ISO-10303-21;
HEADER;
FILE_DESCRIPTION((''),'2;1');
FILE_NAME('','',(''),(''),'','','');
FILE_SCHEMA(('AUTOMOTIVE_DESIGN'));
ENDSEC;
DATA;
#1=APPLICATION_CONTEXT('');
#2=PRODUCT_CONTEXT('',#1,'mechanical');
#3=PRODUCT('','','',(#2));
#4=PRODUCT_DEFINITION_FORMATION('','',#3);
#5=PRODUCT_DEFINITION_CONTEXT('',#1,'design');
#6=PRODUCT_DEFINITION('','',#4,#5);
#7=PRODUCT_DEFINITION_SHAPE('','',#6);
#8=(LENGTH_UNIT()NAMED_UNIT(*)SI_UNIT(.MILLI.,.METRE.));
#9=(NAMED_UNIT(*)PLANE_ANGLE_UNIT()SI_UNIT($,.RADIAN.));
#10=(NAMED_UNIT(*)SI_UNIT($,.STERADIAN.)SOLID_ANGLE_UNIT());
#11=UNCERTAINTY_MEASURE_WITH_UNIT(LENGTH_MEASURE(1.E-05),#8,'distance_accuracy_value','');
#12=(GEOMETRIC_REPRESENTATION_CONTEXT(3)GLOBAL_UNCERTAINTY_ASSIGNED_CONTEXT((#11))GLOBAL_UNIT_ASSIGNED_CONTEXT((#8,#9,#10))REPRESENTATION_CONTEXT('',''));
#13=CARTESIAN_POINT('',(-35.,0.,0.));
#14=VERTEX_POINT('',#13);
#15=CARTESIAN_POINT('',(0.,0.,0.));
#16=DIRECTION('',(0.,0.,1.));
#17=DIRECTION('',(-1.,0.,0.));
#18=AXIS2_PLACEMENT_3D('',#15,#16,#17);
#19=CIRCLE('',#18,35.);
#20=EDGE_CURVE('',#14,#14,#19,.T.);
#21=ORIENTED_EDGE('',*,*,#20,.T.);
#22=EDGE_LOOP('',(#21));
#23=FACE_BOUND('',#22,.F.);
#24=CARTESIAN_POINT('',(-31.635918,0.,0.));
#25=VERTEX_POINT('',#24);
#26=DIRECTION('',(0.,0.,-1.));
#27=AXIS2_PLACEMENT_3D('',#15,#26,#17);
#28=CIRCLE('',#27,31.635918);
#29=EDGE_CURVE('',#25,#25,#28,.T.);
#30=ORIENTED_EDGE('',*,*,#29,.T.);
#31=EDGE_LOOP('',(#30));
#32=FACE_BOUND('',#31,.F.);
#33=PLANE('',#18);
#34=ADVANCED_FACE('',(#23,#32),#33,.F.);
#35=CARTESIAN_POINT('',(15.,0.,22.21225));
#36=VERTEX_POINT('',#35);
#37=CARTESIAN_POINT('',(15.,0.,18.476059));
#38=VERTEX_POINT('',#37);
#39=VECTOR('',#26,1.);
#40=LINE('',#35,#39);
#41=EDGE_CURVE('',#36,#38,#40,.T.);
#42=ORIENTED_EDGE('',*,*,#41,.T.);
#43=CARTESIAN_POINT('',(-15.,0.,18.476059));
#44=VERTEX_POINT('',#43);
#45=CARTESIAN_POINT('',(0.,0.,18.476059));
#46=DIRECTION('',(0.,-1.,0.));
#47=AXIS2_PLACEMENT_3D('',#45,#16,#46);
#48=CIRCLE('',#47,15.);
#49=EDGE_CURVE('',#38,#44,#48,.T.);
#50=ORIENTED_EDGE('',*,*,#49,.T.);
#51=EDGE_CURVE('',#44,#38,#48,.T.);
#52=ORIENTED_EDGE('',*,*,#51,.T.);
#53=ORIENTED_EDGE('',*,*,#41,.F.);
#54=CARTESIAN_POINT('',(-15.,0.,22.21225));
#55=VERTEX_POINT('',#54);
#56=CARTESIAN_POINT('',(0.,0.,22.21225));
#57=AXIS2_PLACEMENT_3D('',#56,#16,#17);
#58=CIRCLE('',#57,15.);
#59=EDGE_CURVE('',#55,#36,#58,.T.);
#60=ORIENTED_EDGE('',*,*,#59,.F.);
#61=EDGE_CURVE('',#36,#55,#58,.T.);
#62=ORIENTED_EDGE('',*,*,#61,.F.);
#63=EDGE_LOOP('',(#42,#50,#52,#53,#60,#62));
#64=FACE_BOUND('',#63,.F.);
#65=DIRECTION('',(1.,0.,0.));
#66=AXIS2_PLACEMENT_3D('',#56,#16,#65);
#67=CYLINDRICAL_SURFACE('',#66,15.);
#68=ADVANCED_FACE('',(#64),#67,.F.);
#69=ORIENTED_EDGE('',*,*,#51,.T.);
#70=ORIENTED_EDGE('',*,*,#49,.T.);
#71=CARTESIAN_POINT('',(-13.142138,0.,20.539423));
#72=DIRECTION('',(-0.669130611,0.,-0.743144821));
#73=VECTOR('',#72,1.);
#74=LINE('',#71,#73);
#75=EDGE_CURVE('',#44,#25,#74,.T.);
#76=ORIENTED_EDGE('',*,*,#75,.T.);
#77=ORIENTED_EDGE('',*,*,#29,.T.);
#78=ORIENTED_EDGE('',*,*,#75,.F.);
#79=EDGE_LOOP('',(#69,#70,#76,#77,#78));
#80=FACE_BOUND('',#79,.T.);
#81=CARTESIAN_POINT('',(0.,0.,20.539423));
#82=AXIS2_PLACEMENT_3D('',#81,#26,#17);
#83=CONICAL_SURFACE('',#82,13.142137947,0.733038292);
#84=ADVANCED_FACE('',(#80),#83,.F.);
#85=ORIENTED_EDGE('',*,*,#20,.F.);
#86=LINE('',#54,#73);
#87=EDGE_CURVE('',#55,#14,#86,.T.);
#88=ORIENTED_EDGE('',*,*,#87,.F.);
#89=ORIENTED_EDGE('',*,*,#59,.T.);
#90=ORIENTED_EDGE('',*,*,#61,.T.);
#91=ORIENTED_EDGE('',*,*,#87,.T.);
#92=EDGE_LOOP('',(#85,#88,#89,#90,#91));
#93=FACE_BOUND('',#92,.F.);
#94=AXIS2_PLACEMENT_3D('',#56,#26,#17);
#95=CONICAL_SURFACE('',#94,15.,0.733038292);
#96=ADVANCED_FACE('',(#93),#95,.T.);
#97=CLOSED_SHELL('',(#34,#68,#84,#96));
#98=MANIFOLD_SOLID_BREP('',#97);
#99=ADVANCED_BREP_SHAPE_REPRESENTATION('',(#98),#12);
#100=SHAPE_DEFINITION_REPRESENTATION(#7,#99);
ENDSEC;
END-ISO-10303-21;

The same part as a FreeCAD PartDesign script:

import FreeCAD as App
import Part
import Sketcher
from FreeCAD import Vector
Q = App.Units.Quantity


def faces_at(feature, points):
    """Names of the faces that lie closest to the given points."""
    faces = feature.Shape.Faces
    near = lambda p: min(range(len(faces)), key=lambda i: faces[i].distToShape(Part.Vertex(*p))[0])
    return sorted({f"Face{near(p) + 1}" for p in points})


def add_polygon(sketch, points):
    """Adds a closed chain of lines whose ends are joined by coincident constraints."""
    first, n = sketch.GeometryCount, len(points)
    for a, b in zip(points, points[1:] + points[:1]):
        sketch.addGeometry(Part.LineSegment(App.Vector(*a, 0), App.Vector(*b, 0)), False)
    for i in range(n):
        sketch.addConstraint(Sketcher.Constraint("Coincident", first + i, 2, first + (i + 1) % n, 1))

doc = App.newDocument("Part")
body = doc.addObject("PartDesign::Body", "Body")

sketch1 = doc.addObject("Sketcher::SketchObject", "Sketch")
body.addObject(sketch1)
sketch1.AttachmentSupport = (doc.XZ_Plane, [""])
sketch1.MapMode = "FlatFace"
add_polygon(sketch1, [(0, 0), (0, 22), (-15, 22), (-35, 0)])
sketch1.addConstraint([
    Sketcher.Constraint("Vertical", 0),
    Sketcher.Constraint("Horizontal", 1),
    Sketcher.Constraint("Horizontal", 3),
    Sketcher.Constraint("Coincident", 3, 2, -1, 1),
    Sketcher.Constraint("DistanceX", 1, 2, 1, 1, 15.0),
    Sketcher.Constraint("DistanceX", 3, 1, 3, 2, 35.0),
    Sketcher.Constraint("Angle", 2, Q("-132 deg")),
])
revolution = doc.addObject("PartDesign::Revolution", "Revolution")
body.addObject(revolution)
revolution.Profile = sketch1
revolution.ReferenceAxis = (sketch1, ["V_Axis"])
revolution.Angle = 360
doc.recompute()

thickness = doc.addObject("PartDesign::Thickness", "Thickness")
body.addObject(thickness)
thickness.Base = (revolution, faces_at(revolution, [(0, 0, 0)]))
thickness.Value = 2.5
thickness.Reversed = True
thickness.Join = "Arc"

sketch2 = doc.addObject("Sketcher::SketchObject", "Sketch001")
body.addObject(sketch2)
sketch2.AttachmentSupport = (doc.XY_Plane, [""])
sketch2.MapMode = "FlatFace"
sketch2.AttachmentOffset = App.Placement(Vector(0, 0, 22.21225), App.Rotation())
sketch2.addGeometry(Part.Circle(Vector(0, 0, 0), Vector(0, 0, 1), 15), False)
sketch2.addConstraint([
    Sketcher.Constraint("Coincident", 0, 3, -1, 1),
    Sketcher.Constraint("Diameter", 0, 30.0),
])
pocket1 = doc.addObject("PartDesign::Pocket", "Pocket")
body.addObject(pocket1)
pocket1.Profile = sketch2
pocket1.Length = 25

doc.recompute()
